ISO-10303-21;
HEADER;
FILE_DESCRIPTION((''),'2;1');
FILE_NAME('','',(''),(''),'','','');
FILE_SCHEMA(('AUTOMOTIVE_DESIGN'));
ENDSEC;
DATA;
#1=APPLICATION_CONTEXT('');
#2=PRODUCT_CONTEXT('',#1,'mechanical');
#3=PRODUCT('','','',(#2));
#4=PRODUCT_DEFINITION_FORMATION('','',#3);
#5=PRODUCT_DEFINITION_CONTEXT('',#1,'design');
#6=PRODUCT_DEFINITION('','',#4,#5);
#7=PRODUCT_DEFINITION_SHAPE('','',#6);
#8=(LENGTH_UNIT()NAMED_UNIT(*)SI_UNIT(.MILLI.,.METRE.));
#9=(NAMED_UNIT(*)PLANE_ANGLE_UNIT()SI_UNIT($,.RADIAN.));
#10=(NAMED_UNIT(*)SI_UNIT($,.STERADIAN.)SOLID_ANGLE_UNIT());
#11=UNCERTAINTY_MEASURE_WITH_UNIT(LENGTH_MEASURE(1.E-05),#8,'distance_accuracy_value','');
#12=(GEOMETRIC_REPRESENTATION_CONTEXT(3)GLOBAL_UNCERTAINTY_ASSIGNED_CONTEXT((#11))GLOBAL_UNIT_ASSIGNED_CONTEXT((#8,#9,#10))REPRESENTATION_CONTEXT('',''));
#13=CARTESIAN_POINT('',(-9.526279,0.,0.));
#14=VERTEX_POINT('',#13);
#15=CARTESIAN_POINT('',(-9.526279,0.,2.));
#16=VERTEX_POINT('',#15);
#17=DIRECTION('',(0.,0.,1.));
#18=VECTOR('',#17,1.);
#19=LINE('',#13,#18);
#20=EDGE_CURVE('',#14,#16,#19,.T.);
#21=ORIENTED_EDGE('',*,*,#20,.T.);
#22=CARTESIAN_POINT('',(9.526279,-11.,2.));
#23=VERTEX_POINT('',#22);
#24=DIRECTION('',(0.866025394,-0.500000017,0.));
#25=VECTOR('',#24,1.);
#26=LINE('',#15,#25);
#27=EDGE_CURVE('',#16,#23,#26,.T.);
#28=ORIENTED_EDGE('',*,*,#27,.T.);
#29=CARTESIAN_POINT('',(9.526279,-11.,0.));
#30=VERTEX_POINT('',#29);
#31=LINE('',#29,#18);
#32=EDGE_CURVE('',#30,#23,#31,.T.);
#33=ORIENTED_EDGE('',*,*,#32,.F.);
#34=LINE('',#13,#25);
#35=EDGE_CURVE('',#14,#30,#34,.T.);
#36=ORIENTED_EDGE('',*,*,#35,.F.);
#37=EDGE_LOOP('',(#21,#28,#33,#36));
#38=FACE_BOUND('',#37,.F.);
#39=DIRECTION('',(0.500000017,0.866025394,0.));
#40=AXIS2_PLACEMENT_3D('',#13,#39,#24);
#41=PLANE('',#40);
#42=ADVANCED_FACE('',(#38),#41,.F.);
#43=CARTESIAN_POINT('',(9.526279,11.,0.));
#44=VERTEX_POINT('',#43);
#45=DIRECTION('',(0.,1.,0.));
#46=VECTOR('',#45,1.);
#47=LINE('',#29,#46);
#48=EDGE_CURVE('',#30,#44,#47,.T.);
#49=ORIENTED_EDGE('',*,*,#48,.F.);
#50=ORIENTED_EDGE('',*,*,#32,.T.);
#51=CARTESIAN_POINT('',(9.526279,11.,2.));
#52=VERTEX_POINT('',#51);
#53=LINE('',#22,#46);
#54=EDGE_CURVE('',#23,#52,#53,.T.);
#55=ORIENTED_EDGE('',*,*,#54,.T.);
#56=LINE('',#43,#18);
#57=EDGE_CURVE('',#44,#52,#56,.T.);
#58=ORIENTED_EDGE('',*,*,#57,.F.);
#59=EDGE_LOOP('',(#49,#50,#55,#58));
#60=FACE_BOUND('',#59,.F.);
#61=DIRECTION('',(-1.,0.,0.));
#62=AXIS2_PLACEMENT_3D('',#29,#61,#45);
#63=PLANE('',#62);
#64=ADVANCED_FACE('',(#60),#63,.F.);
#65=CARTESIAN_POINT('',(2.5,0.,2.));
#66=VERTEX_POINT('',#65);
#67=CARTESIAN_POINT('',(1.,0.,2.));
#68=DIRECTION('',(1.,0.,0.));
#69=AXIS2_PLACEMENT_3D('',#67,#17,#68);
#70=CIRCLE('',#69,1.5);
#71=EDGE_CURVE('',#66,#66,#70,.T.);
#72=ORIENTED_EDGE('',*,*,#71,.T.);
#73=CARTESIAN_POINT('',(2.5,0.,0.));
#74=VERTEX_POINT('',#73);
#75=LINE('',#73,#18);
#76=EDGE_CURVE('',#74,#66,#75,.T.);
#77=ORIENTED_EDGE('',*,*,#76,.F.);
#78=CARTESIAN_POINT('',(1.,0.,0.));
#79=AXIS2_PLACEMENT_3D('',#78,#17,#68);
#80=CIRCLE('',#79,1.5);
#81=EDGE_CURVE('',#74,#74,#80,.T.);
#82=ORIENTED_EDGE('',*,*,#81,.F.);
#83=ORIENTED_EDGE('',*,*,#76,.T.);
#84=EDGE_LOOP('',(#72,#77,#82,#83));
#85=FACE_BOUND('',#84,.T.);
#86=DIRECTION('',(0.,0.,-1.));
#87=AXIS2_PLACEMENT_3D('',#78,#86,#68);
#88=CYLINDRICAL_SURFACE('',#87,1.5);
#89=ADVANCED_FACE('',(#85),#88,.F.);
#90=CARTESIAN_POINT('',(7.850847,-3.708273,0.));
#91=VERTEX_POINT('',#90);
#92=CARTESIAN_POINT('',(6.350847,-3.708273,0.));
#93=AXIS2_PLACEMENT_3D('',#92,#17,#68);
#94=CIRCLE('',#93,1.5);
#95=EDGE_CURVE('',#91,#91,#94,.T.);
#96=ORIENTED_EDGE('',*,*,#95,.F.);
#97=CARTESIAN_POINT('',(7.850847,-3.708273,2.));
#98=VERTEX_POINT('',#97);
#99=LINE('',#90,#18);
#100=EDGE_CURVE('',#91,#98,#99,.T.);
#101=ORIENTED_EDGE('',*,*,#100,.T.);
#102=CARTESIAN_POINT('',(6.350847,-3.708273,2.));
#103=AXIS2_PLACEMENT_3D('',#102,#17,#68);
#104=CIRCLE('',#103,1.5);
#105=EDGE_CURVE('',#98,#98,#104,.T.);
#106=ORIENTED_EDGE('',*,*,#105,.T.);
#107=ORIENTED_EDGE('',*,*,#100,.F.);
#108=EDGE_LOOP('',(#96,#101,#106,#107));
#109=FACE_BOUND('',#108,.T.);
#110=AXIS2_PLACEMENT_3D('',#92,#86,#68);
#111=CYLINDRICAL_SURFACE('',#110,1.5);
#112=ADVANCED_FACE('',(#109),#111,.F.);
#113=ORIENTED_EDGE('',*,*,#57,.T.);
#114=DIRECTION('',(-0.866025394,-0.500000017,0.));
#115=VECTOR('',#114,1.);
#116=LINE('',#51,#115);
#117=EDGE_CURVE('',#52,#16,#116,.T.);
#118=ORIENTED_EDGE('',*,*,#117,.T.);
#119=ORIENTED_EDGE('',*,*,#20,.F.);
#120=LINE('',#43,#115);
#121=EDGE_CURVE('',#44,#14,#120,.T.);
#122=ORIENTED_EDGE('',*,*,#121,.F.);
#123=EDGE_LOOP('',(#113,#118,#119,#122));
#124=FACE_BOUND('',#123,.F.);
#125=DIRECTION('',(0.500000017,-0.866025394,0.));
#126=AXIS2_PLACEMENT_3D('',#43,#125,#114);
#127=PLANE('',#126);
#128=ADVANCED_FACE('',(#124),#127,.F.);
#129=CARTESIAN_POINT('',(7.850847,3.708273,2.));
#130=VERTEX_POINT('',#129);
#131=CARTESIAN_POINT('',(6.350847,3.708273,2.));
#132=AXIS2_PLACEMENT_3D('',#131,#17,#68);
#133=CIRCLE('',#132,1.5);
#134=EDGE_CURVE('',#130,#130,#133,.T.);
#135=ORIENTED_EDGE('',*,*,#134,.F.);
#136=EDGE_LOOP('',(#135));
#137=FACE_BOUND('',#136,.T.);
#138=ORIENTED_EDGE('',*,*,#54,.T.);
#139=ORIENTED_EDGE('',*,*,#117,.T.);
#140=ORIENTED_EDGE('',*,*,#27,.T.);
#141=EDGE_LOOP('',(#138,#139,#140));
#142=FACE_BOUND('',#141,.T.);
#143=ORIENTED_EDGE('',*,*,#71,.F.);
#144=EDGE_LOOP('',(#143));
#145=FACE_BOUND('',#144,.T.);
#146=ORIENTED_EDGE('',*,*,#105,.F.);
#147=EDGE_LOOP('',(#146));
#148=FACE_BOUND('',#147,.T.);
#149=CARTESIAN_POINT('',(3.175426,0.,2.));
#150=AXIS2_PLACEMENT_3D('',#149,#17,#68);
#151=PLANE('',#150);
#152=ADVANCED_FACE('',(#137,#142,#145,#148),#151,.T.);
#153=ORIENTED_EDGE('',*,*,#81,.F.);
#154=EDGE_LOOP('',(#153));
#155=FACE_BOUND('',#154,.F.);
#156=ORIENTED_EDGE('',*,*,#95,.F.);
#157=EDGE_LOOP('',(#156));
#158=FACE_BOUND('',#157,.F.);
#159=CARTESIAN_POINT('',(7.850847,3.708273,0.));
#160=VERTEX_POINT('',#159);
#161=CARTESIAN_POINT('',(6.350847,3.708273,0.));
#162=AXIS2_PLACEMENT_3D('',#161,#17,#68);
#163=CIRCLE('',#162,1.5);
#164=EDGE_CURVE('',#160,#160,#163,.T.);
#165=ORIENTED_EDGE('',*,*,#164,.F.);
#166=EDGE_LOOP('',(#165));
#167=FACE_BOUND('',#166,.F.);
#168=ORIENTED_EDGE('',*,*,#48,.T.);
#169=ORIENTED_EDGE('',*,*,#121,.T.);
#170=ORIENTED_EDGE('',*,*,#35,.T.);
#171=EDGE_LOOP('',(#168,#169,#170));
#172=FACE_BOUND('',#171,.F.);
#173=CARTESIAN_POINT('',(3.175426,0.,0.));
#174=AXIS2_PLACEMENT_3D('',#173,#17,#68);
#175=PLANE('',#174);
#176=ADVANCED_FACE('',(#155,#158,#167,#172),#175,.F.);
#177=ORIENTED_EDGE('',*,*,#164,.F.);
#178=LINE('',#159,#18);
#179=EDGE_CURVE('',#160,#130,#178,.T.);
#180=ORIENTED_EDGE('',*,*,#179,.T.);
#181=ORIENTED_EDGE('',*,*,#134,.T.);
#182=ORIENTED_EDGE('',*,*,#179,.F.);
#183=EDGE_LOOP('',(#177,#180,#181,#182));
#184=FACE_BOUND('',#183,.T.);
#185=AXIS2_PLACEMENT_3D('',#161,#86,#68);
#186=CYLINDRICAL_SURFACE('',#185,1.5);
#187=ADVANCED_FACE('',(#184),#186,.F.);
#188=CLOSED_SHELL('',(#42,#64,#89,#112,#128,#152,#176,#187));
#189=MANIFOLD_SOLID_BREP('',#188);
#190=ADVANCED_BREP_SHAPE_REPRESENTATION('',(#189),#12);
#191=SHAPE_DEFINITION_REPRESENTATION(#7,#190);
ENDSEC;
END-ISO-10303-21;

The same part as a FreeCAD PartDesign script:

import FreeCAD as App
import Part
import Sketcher
from FreeCAD import Vector
Q = App.Units.Quantity

doc = App.newDocument("Part")
body = doc.addObject("PartDesign::Body", "Body")

sketch1 = body.newObject("Sketcher::SketchObject", "Sketch")
sketch1.AttachmentSupport = (doc.getObject("XY_Plane"), [""])
sketch1.MapMode = "FlatFace"
sketch1.addGeometry([
    Part.LineSegment(Vector(9.526279, 11, 0), Vector(-9.526279, 0, 0)),
    Part.LineSegment(Vector(-9.526279, 0, 0), Vector(9.526279, -11, 0)),
    Part.LineSegment(Vector(9.526279, -11, 0), Vector(9.526279, 11, 0)),
    Part.Circle(Vector(6.350847, -3.708273, 0), Vector(0, 0, 1), 1.5),
    Part.Circle(Vector(1, 0, 0), Vector(0, 0, 1), 1.5),
    Part.Circle(Vector(6.350847, 3.708273, 0), Vector(0, 0, 1), 1.5),
], False)
sketch1.addConstraint([
    Sketcher.Constraint("Coincident", 0, 2, 1, 1),
    Sketcher.Constraint("Coincident", 1, 2, 2, 1),
    Sketcher.Constraint("Coincident", 2, 2, 0, 1),
    Sketcher.Constraint("Vertical", 2),
    Sketcher.Constraint("Equal", 3, 4),
    Sketcher.Constraint("Equal", 4, 5),
    Sketcher.Constraint("Symmetric", 3, 3, 5, 3, -1),
    Sketcher.Constraint("PointOnObject", 4, 3, -1),
    Sketcher.Constraint("PointOnObject", 0, 2, -1),
    Sketcher.Constraint("Equal", 0, 1),
    Sketcher.Constraint("Diameter", 3, 3.0),
    Sketcher.Constraint("DistanceY", 2, 1, 2, 2, 22.0),
    Sketcher.Constraint("Angle", 0, Q("-149.999999 deg")),
    Sketcher.Constraint("DistanceX", -1, 1, 4, 3, 1.0),
    Sketcher.Constraint("DistanceX", 0, 2, -1, 1, 9.526279),
    Sketcher.Constraint("DistanceX", -1, 1, 3, 3, 6.350847),
    Sketcher.Constraint("DistanceY", 3, 3, -1, 1, 3.708273),
])
pad1 = body.newObject("PartDesign::Pad", "Pad")
pad1.Profile = sketch1
pad1.Length = 2

doc.recompute()
